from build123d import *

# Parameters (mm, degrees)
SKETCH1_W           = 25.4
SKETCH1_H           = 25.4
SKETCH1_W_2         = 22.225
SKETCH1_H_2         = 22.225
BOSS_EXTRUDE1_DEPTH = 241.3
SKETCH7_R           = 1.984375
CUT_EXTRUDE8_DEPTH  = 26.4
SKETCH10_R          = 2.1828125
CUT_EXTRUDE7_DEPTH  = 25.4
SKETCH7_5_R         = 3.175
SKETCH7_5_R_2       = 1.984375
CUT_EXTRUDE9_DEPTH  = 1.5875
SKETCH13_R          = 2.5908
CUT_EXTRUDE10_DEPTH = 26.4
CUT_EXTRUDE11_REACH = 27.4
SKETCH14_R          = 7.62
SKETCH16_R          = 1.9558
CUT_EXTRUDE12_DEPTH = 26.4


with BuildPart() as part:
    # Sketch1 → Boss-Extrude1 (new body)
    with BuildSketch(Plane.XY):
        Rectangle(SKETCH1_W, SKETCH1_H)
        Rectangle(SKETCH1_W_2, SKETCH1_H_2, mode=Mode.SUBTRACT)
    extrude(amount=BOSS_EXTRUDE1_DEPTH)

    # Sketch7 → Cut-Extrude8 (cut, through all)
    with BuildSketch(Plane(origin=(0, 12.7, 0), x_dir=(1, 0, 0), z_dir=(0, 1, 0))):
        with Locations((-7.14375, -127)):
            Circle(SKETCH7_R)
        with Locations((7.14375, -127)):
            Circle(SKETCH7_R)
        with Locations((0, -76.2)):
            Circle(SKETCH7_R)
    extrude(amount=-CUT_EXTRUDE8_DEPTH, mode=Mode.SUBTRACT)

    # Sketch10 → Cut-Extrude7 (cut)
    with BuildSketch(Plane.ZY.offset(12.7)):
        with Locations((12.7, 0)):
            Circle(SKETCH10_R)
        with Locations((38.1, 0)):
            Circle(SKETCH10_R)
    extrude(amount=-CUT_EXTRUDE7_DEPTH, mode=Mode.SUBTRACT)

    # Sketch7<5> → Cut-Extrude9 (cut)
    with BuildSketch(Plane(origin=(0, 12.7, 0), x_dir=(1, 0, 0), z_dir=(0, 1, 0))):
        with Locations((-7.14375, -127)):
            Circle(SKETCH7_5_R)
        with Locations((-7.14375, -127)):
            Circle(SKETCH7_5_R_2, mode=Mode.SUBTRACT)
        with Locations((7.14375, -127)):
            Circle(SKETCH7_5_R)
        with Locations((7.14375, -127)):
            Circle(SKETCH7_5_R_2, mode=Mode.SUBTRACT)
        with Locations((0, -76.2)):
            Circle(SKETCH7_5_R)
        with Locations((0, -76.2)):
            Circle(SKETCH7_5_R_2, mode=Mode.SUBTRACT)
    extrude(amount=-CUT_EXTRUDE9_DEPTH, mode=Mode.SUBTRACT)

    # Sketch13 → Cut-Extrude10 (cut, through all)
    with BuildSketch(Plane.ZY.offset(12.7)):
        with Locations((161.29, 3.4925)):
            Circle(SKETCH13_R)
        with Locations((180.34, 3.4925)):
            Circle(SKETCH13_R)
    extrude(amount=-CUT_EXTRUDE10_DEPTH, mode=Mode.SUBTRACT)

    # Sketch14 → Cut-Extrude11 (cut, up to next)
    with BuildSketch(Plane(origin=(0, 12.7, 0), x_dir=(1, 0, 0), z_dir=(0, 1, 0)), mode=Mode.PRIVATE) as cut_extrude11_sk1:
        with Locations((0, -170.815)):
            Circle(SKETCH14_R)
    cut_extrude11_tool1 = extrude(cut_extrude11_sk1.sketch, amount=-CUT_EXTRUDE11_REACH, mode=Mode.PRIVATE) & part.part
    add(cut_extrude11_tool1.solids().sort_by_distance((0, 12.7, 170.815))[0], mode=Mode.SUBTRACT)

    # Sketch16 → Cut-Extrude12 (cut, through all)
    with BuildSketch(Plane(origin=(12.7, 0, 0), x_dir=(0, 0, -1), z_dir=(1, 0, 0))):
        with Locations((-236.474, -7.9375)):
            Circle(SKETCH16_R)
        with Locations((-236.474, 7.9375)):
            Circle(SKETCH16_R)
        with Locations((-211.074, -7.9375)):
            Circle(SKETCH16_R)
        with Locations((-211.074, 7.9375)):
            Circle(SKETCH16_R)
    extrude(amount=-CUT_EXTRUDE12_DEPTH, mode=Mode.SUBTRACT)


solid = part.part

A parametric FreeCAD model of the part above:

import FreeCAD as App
import Part
import Sketcher

V = App.Vector
Q = App.Units.Quantity


def add_polygon(sketch, points):
    """Adds a closed chain of lines whose ends are joined by coincident constraints."""
    first, n = sketch.GeometryCount, len(points)
    for a, b in zip(points, points[1:] + points[:1]):
        sketch.addGeometry(Part.LineSegment(App.Vector(*a, 0), App.Vector(*b, 0)), False)
    for i in range(n):
        sketch.addConstraint(Sketcher.Constraint("Coincident", first + i, 2, first + (i + 1) % n, 1))

doc = App.newDocument("Part")
body = doc.addObject("PartDesign::Body", "Body")

sketch1 = body.newObject("Sketcher::SketchObject", "Sketch")
sketch1.AttachmentSupport = (doc.getObject("XY_Plane"), [""])
sketch1.MapMode = "FlatFace"
add_polygon(sketch1, [(-12.7, 12.7), (-12.7, -12.7), (12.7, -12.7), (12.7, 12.7)])
add_polygon(sketch1, [(11.1125, -11.1125), (-11.1125, -11.1125), (-11.1125, 11.1125), (11.1125, 11.1125)])
sketch1.addConstraint([
    Sketcher.Constraint("Vertical", 0),
    Sketcher.Constraint("Horizontal", 1),
    Sketcher.Constraint("Vertical", 2),
    Sketcher.Constraint("Horizontal", 3),
    Sketcher.Constraint("Horizontal", 4),
    Sketcher.Constraint("Vertical", 5),
    Sketcher.Constraint("Horizontal", 6),
    Sketcher.Constraint("Vertical", 7),
    Sketcher.Constraint("Symmetric", 0, 2, 2, 2, -1, 1),
    Sketcher.Constraint("Symmetric", 4, 2, 6, 2, -1, 1),
    Sketcher.Constraint("Equal", 3, 0),
    Sketcher.Constraint("Equal", 6, 5),
    Sketcher.Constraint("DistanceX", 1, 1, 1, 2, Q("1 in")),
    Sketcher.Constraint("DistanceX", 4, 2, 4, 1, Q("0.875 in")),
])
pad1 = body.newObject("PartDesign::Pad", "Pad")
pad1.Profile = sketch1
pad1.Length = Q("9.5 in")

sketch2 = body.newObject("Sketcher::SketchObject", "Sketch001")
sketch2.AttachmentSupport = (doc.getObject("XZ_Plane"), [""])
sketch2.MapMode = "FlatFace"
sketch2.AttachmentOffset = App.Placement(V(0, 0, -0.5 * 25.4), App.Rotation())
sketch2.addGeometry([
    Part.Circle(V(-7.14375, 127, 0), V(0, 0, 1), 1.984375),
    Part.Circle(V(7.14375, 127, 0), V(0, 0, 1), 1.984375),
    Part.Circle(V(0, 76.2, 0), V(0, 0, 1), 1.984375),
], False)
sketch2.addConstraint([
    Sketcher.Constraint("Equal", 0, 1),
    Sketcher.Constraint("Equal", 1, 2),
    Sketcher.Constraint("Symmetric", 0, 3, 1, 3, -2),
    Sketcher.Constraint("PointOnObject", 2, 3, -2),
    Sketcher.Constraint("Diameter", 0, Q("0.15625 in")),
    Sketcher.Constraint("DistanceY", -1, 1, 0, 3, Q("5 in")),
    Sketcher.Constraint("DistanceY", -1, 1, 2, 3, Q("3 in")),
    Sketcher.Constraint("DistanceX", 0, 3, -1, 1, Q("0.28125 in")),
])
pocket1 = body.newObject("PartDesign::Pocket", "Pocket")
pocket1.Profile = sketch2
pocket1.Type = "ThroughAll"
pocket1.Reversed = True

sketch3 = body.newObject("Sketcher::SketchObject", "Sketch002")
sketch3.AttachmentSupport = (doc.getObject("YZ_Plane"), [""])
sketch3.MapMode = "FlatFace"
sketch3.AttachmentOffset = App.Placement(V(0, 0, -0.5 * 25.4), App.Rotation())
sketch3.addGeometry([
    Part.Circle(V(0, 12.7, 0), V(0, 0, 1), 2.182812),
    Part.Circle(V(0, 38.1, 0), V(0, 0, 1), 2.182812),
], False)
sketch3.addConstraint([
    Sketcher.Constraint("Equal", 0, 1),
    Sketcher.Constraint("PointOnObject", 0, 3, -2),
    Sketcher.Constraint("PointOnObject", 1, 3, -2),
    Sketcher.Constraint("Diameter", 0, Q("0.171875 in")),
    Sketcher.Constraint("DistanceY", 0, 3, 1, 3, Q("1 in")),
    Sketcher.Constraint("DistanceY", -1, 1, 0, 3, Q("0.5 in")),
])
pocket2 = body.newObject("PartDesign::Pocket", "Pocket001")
pocket2.Profile = sketch3
pocket2.Length = Q("1 in")
pocket2.Reversed = True

sketch4 = body.newObject("Sketcher::SketchObject", "Sketch003")
sketch4.AttachmentSupport = (doc.getObject("XZ_Plane"), [""])
sketch4.MapMode = "FlatFace"
sketch4.AttachmentOffset = App.Placement(V(0, 0, -0.5 * 25.4), App.Rotation())
sketch4.addGeometry([
    Part.Circle(V(-7.14375, 127, 0), V(0, 0, 1), 3.175),
    Part.Circle(V(-7.14375, 127, 0), V(0, 0, 1), 1.984375),
    Part.Circle(V(7.14375, 127, 0), V(0, 0, 1), 3.175),
    Part.Circle(V(7.14375, 127, 0), V(0, 0, 1), 1.984375),
    Part.Circle(V(0, 76.2, 0), V(0, 0, 1), 3.175),
    Part.Circle(V(0, 76.2, 0), V(0, 0, 1), 1.984375),
], False)
sketch4.addConstraint([
    Sketcher.Constraint("Coincident", 1, 3, 0, 3),
    Sketcher.Constraint("Coincident", 3, 3, 2, 3),
    Sketcher.Constraint("Coincident", 5, 3, 4, 3),
    Sketcher.Constraint("Equal", 0, 2),
    Sketcher.Constraint("Equal", 1, 3),
    Sketcher.Constraint("Equal", 2, 4),
    Sketcher.Constraint("Equal", 3, 5),
    Sketcher.Constraint("Symmetric", 0, 3, 2, 3, -2),
    Sketcher.Constraint("PointOnObject", 4, 3, -2),
    Sketcher.Constraint("Diameter", 0, Q("0.25 in")),
    Sketcher.Constraint("Diameter", 1, Q("0.15625 in")),
    Sketcher.Constraint("DistanceY", -1, 1, 0, 3, Q("5 in")),
    Sketcher.Constraint("DistanceY", -1, 1, 4, 3, Q("3 in")),
    Sketcher.Constraint("DistanceX", 0, 3, -1, 1, Q("0.28125 in")),
])
pocket3 = body.newObject("PartDesign::Pocket", "Pocket002")
pocket3.Profile = sketch4
pocket3.Length = Q("0.0625 in")
pocket3.Reversed = True

sketch5 = body.newObject("Sketcher::SketchObject", "Sketch004")
sketch5.AttachmentSupport = (doc.getObject("YZ_Plane"), [""])
sketch5.MapMode = "FlatFace"
sketch5.AttachmentOffset = App.Placement(V(0, 0, -0.5 * 25.4), App.Rotation())
sketch5.addGeometry([
    Part.Circle(V(3.4925, 161.29, 0), V(0, 0, 1), 2.5908),
    Part.Circle(V(3.4925, 180.34, 0), V(0, 0, 1), 2.5908),
], False)
sketch5.addConstraint([
    Sketcher.Constraint("Equal", 0, 1),
    Sketcher.Constraint("Vertical", 0, 3, 1, 3),
    Sketcher.Constraint("Diameter", 0, Q("0.204 in")),
    Sketcher.Constraint("DistanceY", -1, 1, 1, 3, Q("7.1 in")),
    Sketcher.Constraint("DistanceY", -1, 1, 0, 3, Q("6.35 in")),
    Sketcher.Constraint("DistanceX", -1, 1, 0, 3, Q("0.1375 in")),
])
pocket4 = body.newObject("PartDesign::Pocket", "Pocket003")
pocket4.Profile = sketch5
pocket4.Type = "ThroughAll"
pocket4.Reversed = True

sketch6 = body.newObject("Sketcher::SketchObject", "Sketch005")
sketch6.AttachmentSupport = (doc.getObject("XZ_Plane"), [""])
sketch6.MapMode = "FlatFace"
sketch6.AttachmentOffset = App.Placement(V(0, 0, -0.5 * 25.4), App.Rotation())
sketch6.addGeometry(Part.Circle(V(0, 170.815, 0), V(0, 0, 1), 7.62), False)
sketch6.addConstraint([
    Sketcher.Constraint("PointOnObject", 0, 3, -2),
    Sketcher.Constraint("Diameter", 0, Q("0.6 in")),
    Sketcher.Constraint("DistanceY", -1, 1, 0, 3, Q("6.725 in")),
])
pocket5 = body.newObject("PartDesign::Pocket", "Pocket004")
pocket5.Profile = sketch6
pocket5.Type = "UpToFirst"
pocket5.Reversed = True

sketch7 = body.newObject("Sketcher::SketchObject", "Sketch006")
sketch7.AttachmentSupport = (doc.getObject("YZ_Plane"), [""])
sketch7.MapMode = "FlatFace"
sketch7.AttachmentOffset = App.Placement(V(0, 0, 0.5 * 25.4), App.Rotation())
sketch7.addGeometry([
    Part.Circle(V(-7.9375, 236.474, 0), V(0, 0, 1), 1.9558),
    Part.Circle(V(7.9375, 236.474, 0), V(0, 0, 1), 1.9558),
    Part.Circle(V(-7.9375, 211.074, 0), V(0, 0, 1), 1.9558),
    Part.Circle(V(7.9375, 211.074, 0), V(0, 0, 1), 1.9558),
], False)
sketch7.addConstraint([
    Sketcher.Constraint("Equal", 0, 1),
    Sketcher.Constraint("Equal", 1, 2),
    Sketcher.Constraint("Equal", 2, 3),
    Sketcher.Constraint("Symmetric", 0, 3, 1, 3, -2),
    Sketcher.Constraint("Symmetric", 2, 3, 3, 3, -2),
    Sketcher.Constraint("Vertical", 0, 3, 2, 3),
    Sketcher.Constraint("Diameter", 0, Q("0.154 in")),
    Sketcher.Constraint("DistanceY", 2, 3, 0, 3, Q("1 in")),
    Sketcher.Constraint("DistanceY", -1, 1, 0, 3, Q("9.31 in")),
    Sketcher.Constraint("DistanceX", 0, 3, -1, 1, Q("0.3125 in")),
])
pocket6 = body.newObject("PartDesign::Pocket", "Pocket005")
pocket6.Profile = sketch7
pocket6.Type = "ThroughAll"

doc.recompute()
